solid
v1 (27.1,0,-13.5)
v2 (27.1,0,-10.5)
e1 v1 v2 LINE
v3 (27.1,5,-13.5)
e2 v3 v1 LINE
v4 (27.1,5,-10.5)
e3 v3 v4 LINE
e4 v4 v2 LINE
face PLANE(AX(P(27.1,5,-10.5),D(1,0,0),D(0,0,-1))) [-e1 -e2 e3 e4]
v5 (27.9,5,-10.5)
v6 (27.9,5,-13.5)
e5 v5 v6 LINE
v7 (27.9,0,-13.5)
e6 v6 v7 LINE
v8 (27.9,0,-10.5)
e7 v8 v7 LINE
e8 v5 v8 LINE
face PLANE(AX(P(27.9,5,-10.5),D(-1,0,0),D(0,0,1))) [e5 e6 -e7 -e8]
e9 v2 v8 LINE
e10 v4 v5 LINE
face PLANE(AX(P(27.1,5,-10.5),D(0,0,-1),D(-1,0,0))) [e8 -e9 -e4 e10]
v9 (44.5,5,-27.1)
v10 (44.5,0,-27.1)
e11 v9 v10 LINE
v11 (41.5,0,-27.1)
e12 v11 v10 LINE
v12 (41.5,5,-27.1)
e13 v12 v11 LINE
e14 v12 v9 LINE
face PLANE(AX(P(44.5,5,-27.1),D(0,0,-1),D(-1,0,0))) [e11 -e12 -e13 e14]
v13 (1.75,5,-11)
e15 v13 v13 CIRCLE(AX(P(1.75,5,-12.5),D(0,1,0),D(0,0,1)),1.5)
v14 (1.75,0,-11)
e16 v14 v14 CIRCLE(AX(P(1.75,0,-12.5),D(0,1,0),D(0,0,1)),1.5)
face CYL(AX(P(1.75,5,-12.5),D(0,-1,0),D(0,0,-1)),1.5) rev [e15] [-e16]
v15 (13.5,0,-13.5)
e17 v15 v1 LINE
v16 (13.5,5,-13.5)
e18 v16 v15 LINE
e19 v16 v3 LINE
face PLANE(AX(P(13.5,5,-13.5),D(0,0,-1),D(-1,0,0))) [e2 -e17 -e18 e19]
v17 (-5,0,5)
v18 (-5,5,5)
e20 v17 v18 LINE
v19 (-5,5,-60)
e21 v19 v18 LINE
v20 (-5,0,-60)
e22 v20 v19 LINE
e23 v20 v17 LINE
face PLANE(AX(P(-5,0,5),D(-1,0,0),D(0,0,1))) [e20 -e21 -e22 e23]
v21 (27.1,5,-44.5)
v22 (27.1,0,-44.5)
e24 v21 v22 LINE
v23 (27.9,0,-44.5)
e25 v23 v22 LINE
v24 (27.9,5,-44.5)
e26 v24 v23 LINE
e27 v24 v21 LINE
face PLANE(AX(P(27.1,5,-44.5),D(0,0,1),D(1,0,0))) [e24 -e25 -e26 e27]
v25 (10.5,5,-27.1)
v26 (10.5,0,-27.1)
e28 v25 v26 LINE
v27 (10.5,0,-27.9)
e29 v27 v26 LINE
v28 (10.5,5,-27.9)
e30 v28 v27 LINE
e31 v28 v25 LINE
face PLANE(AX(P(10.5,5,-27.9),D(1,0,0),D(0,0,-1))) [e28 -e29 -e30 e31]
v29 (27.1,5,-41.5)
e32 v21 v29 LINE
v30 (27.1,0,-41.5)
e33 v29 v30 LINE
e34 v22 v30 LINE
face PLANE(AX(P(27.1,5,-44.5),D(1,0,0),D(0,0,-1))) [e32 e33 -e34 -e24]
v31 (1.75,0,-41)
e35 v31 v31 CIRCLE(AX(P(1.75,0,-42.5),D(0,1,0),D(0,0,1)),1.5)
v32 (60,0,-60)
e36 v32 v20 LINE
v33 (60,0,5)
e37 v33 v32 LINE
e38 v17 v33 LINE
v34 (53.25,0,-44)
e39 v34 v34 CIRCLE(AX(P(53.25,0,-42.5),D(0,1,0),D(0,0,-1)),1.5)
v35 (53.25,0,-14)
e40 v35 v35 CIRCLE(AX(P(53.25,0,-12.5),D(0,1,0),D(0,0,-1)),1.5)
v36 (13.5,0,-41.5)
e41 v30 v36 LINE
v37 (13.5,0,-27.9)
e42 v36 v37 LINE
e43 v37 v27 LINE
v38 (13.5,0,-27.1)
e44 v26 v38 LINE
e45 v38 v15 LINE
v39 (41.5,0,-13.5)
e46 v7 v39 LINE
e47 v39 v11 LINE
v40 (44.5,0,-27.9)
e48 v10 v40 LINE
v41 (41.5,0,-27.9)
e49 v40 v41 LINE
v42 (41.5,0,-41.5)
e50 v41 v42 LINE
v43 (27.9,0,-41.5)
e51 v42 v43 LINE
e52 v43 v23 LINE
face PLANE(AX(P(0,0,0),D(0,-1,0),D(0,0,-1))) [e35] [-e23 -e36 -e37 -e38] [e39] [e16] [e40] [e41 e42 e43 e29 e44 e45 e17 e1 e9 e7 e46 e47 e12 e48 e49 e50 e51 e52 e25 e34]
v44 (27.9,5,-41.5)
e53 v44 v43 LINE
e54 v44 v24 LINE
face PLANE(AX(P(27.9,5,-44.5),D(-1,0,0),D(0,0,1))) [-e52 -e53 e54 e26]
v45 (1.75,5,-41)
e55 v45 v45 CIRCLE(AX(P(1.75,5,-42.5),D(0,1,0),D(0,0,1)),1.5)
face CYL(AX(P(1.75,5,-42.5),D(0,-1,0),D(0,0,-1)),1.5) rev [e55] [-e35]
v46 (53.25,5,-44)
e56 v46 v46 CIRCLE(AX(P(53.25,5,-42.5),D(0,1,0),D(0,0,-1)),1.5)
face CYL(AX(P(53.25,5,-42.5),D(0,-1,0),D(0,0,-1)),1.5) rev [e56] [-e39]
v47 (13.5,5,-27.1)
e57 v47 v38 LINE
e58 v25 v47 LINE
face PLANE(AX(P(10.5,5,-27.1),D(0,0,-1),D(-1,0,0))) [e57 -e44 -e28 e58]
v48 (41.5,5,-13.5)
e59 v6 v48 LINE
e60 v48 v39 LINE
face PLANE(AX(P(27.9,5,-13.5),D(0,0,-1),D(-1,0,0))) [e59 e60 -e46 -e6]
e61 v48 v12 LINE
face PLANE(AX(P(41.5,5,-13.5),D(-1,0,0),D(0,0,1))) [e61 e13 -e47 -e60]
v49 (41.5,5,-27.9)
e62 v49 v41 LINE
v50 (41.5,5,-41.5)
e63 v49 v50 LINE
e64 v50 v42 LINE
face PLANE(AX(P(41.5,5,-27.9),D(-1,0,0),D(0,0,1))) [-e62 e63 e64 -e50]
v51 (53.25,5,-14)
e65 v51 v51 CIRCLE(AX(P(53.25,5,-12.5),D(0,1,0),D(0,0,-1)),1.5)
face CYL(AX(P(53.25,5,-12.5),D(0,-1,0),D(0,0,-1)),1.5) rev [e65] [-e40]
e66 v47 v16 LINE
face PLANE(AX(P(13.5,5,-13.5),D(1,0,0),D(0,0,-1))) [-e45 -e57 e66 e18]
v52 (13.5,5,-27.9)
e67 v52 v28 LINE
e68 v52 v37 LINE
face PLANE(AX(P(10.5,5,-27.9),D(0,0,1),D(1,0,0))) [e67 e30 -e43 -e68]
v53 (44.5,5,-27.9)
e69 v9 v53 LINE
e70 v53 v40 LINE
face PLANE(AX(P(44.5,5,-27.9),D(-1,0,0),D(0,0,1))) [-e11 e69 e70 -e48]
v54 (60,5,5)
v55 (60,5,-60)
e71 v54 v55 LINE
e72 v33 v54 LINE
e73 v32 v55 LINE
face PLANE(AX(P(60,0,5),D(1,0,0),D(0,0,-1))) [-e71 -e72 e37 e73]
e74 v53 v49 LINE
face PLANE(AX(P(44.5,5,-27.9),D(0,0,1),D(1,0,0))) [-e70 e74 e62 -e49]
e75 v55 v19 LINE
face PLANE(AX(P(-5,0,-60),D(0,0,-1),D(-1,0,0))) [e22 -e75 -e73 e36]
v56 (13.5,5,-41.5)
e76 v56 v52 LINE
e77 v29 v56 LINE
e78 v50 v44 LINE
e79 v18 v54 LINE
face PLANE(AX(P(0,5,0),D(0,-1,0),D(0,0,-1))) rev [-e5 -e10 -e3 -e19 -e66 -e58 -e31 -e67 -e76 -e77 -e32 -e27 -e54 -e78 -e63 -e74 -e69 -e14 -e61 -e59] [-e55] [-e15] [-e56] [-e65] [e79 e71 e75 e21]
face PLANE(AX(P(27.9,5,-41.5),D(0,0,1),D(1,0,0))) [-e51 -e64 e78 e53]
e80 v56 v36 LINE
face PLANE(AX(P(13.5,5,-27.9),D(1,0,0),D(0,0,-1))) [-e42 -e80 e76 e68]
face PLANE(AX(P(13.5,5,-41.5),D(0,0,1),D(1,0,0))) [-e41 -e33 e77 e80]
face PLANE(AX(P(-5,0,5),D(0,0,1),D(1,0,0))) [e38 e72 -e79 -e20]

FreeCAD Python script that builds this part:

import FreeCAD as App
import Part
import Sketcher

V = App.Vector

doc = App.newDocument("Part")
body = doc.addObject("PartDesign::Body", "Body")

# Sketch on XZ plane
sketch1 = doc.addObject("Sketcher::SketchObject", "Sketch")
body.addObject(sketch1)
sketch1.AttachmentSupport = (doc.XZ_Plane, [""])
sketch1.MapMode = "FlatFace"
sketch1.addGeometry(Part.LineSegment(V(0, -55, 0), V(0, 0, 0)), False)
sketch1.addGeometry(Part.LineSegment(V(0, 0, 0), V(55, 0, 0)), False)
sketch1.addGeometry(Part.LineSegment(V(55, 0, 0), V(55, -55, 0)), False)
sketch1.addGeometry(Part.LineSegment(V(55, -55, 0), V(0, -55, 0)), False)
sketch1.addGeometry(Part.Circle(V(1.8, -12.5, 0), V(0, 0, 1), 1.5), False)
sketch1.addGeometry(Part.Circle(V(53.2, -12.5, 0), V(0, 0, 1), 1.5), False)
sketch1.addGeometry(Part.Circle(V(1.8, -42.5, 0), V(0, 0, 1), 1.5), False)
sketch1.addGeometry(Part.LineSegment(V(27.1, -13.5, 0), V(13.5, -13.5, 0)), False)
sketch1.addGeometry(Part.LineSegment(V(13.5, -13.5, 0), V(13.5, -27.1, 0)), False)
sketch1.addGeometry(Part.LineSegment(V(13.5, -27.1, 0), V(10.5, -27.1, 0)), False)
sketch1.addGeometry(Part.LineSegment(V(10.5, -27.1, 0), V(10.5, -27.9, 0)), False)
sketch1.addGeometry(Part.LineSegment(V(10.5, -27.9, 0), V(13.5, -27.9, 0)), False)
sketch1.addGeometry(Part.LineSegment(V(13.5, -27.9, 0), V(13.5, -41.5, 0)), False)
sketch1.addGeometry(Part.LineSegment(V(13.5, -41.5, 0), V(27.1, -41.5, 0)), False)
sketch1.addGeometry(Part.LineSegment(V(27.1, -41.5, 0), V(27.1, -44.5, 0)), False)
sketch1.addGeometry(Part.LineSegment(V(27.1, -44.5, 0), V(27.9, -44.5, 0)), False)
sketch1.addGeometry(Part.LineSegment(V(27.9, -44.5, 0), V(27.9, -41.5, 0)), False)
sketch1.addGeometry(Part.LineSegment(V(27.9, -41.5, 0), V(41.5, -41.5, 0)), False)
sketch1.addGeometry(Part.LineSegment(V(41.5, -41.5, 0), V(41.5, -27.9, 0)), False)
sketch1.addGeometry(Part.LineSegment(V(41.5, -27.9, 0), V(44.5, -27.9, 0)), False)
sketch1.addGeometry(Part.LineSegment(V(44.5, -27.9, 0), V(44.5, -27.1, 0)), False)
sketch1.addGeometry(Part.LineSegment(V(44.5, -27.1, 0), V(41.5, -27.1, 0)), False)
sketch1.addGeometry(Part.LineSegment(V(41.5, -27.1, 0), V(41.5, -13.5, 0)), False)
sketch1.addGeometry(Part.LineSegment(V(41.5, -13.5, 0), V(27.9, -13.5, 0)), False)
sketch1.addGeometry(Part.LineSegment(V(27.9, -13.5, 0), V(27.9, -10.5, 0)), False)
sketch1.addGeometry(Part.LineSegment(V(27.9, -10.5, 0), V(27.1, -10.5, 0)), False)
sketch1.addGeometry(Part.LineSegment(V(27.1, -10.5, 0), V(27.1, -13.5, 0)), False)
sketch1.addGeometry(Part.Circle(V(53.2, -42.5, 0), V(0, 0, 1), 1.5), False)
sketch1.addConstraint(Sketcher.Constraint("Coincident", 0, 2, 1, 1))
sketch1.addConstraint(Sketcher.Constraint("Coincident", 1, 2, 2, 1))
sketch1.addConstraint(Sketcher.Constraint("Coincident", 2, 2, 3, 1))
sketch1.addConstraint(Sketcher.Constraint("Coincident", 3, 2, 0, 1))
sketch1.addConstraint(Sketcher.Constraint("Coincident", 7, 2, 8, 1))
sketch1.addConstraint(Sketcher.Constraint("Coincident", 8, 2, 9, 1))
sketch1.addConstraint(Sketcher.Constraint("Coincident", 9, 2, 10, 1))
sketch1.addConstraint(Sketcher.Constraint("Coincident", 10, 2, 11, 1))
sketch1.addConstraint(Sketcher.Constraint("Coincident", 11, 2, 12, 1))
sketch1.addConstraint(Sketcher.Constraint("Coincident", 12, 2, 13, 1))
sketch1.addConstraint(Sketcher.Constraint("Coincident", 13, 2, 14, 1))
sketch1.addConstraint(Sketcher.Constraint("Coincident", 14, 2, 15, 1))
sketch1.addConstraint(Sketcher.Constraint("Coincident", 15, 2, 16, 1))
sketch1.addConstraint(Sketcher.Constraint("Coincident", 16, 2, 17, 1))
sketch1.addConstraint(Sketcher.Constraint("Coincident", 17, 2, 18, 1))
sketch1.addConstraint(Sketcher.Constraint("Coincident", 18, 2, 19, 1))
sketch1.addConstraint(Sketcher.Constraint("Coincident", 19, 2, 20, 1))
sketch1.addConstraint(Sketcher.Constraint("Coincident", 20, 2, 21, 1))
sketch1.addConstraint(Sketcher.Constraint("Coincident", 21, 2, 22, 1))
sketch1.addConstraint(Sketcher.Constraint("Coincident", 22, 2, 23, 1))
sketch1.addConstraint(Sketcher.Constraint("Coincident", 23, 2, 24, 1))
sketch1.addConstraint(Sketcher.Constraint("Coincident", 24, 2, 25, 1))
sketch1.addConstraint(Sketcher.Constraint("Coincident", 25, 2, 26, 1))
sketch1.addConstraint(Sketcher.Constraint("Coincident", 26, 2, 7, 1))
sketch1.addConstraint(Sketcher.Constraint("Vertical", 0))
sketch1.addConstraint(Sketcher.Constraint("Horizontal", 1))
sketch1.addConstraint(Sketcher.Constraint("Vertical", 2))
sketch1.addConstraint(Sketcher.Constraint("Horizontal", 3))
sketch1.addConstraint(Sketcher.Constraint("Horizontal", 7))
sketch1.addConstraint(Sketcher.Constraint("Vertical", 8))
sketch1.addConstraint(Sketcher.Constraint("Horizontal", 9))
sketch1.addConstraint(Sketcher.Constraint("Vertical", 10))
sketch1.addConstraint(Sketcher.Constraint("Horizontal", 11))
sketch1.addConstraint(Sketcher.Constraint("Vertical", 12))
sketch1.addConstraint(Sketcher.Constraint("Horizontal", 13))
sketch1.addConstraint(Sketcher.Constraint("Vertical", 14))
sketch1.addConstraint(Sketcher.Constraint("Horizontal", 15))
sketch1.addConstraint(Sketcher.Constraint("Vertical", 16))
sketch1.addConstraint(Sketcher.Constraint("Horizontal", 17))
sketch1.addConstraint(Sketcher.Constraint("Vertical", 18))
sketch1.addConstraint(Sketcher.Constraint("Horizontal", 19))
sketch1.addConstraint(Sketcher.Constraint("Vertical", 20))
sketch1.addConstraint(Sketcher.Constraint("Horizontal", 21))
sketch1.addConstraint(Sketcher.Constraint("Vertical", 22))
sketch1.addConstraint(Sketcher.Constraint("Horizontal", 23))
sketch1.addConstraint(Sketcher.Constraint("Vertical", 24))
sketch1.addConstraint(Sketcher.Constraint("Horizontal", 25))
sketch1.addConstraint(Sketcher.Constraint("Vertical", 26))
sketch1.addConstraint(Sketcher.Constraint("Coincident", 0, 2, -1, 1))
sketch1.addConstraint(Sketcher.Constraint("Equal", 4, 5))
sketch1.addConstraint(Sketcher.Constraint("Equal", 5, 6))
sketch1.addConstraint(Sketcher.Constraint("Equal", 6, 27))
sketch1.addConstraint(Sketcher.Constraint("Horizontal", 4, 3, 5, 3))
sketch1.addConstraint(Sketcher.Constraint("Horizontal", 6, 3, 27, 3))
sketch1.addConstraint(Sketcher.Constraint("Horizontal", 13, 2, 16, 2))
sketch1.addConstraint(Sketcher.Constraint("Horizontal", 11, 2, 18, 2))
sketch1.addConstraint(Sketcher.Constraint("Horizontal", 9, 2, 20, 2))
sketch1.addConstraint(Sketcher.Constraint("Horizontal", 7, 2, 22, 2))
sketch1.addConstraint(Sketcher.Constraint("Vertical", 4, 3, 6, 3))
sketch1.addConstraint(Sketcher.Constraint("Vertical", 5, 3, 27, 3))
sketch1.addConstraint(Sketcher.Constraint("Vertical", 8, 2, 11, 2))
sketch1.addConstraint(Sketcher.Constraint("Vertical", 18, 2, 21, 2))
sketch1.addConstraint(Sketcher.Constraint("Vertical", 16, 2, 23, 2))
sketch1.addConstraint(Sketcher.Constraint("Vertical", 14, 2, 25, 2))
sketch1.addConstraint(Sketcher.Constraint("Equal", 13, 17))
sketch1.addConstraint(Sketcher.Constraint("Equal", 11, 19))
sketch1.addConstraint(Sketcher.Constraint("Equal", 3, 0))
sketch1.addConstraint(Sketcher.Constraint("Equal", 23, 8))
sketch1.addConstraint(Sketcher.Constraint("Equal", 25, 10))
sketch1.addConstraint(Sketcher.Constraint("Equal", 8, 12))
sketch1.addConstraint(Sketcher.Constraint("Equal", 21, 14))
sketch1.addConstraint(Sketcher.Constraint("Equal", 16, 24))
sketch1.addConstraint(Sketcher.Constraint("Diameter", 4, 3.0))
sketch1.addConstraint(Sketcher.Constraint("DistanceX", 1, 1, 1, 2, 55.0))
sketch1.addConstraint(Sketcher.Constraint("DistanceX", 9, 2, 9, 1, 3.0))
sketch1.addConstraint(Sketcher.Constraint("DistanceX", 7, 2, 7, 1, 13.6))
sketch1.addConstraint(Sketcher.Constraint("DistanceX", 15, 1, 15, 2, 0.8))
sketch1.addConstraint(Sketcher.Constraint("DistanceY", 6, 3, 4, 3, 30.0))
sketch1.addConstraint(Sketcher.Constraint("DistanceY", 7, 2, 4, 3, 1.0))
sketch1.addConstraint(Sketcher.Constraint("DistanceY", 4, 3, -1, 1, 12.5))
sketch1.addConstraint(Sketcher.Constraint("DistanceX", -1, 1, 7, 2, 13.5))
sketch1.addConstraint(Sketcher.Constraint("DistanceX", 4, 3, 5, 3, 51.5))
sketch1.addConstraint(Sketcher.Constraint("DistanceX", -1, 1, 4, 3, 1.75))
pad1 = doc.addObject("PartDesign::Pad", "Pad")
body.addObject(pad1)
pad1.Profile = sketch1
pad1.Length = 5
pad1.Reversed = True

# Sketch on XZ plane
sketch2 = doc.addObject("Sketcher::SketchObject", "Sketch001")
body.addObject(sketch2)
sketch2.AttachmentSupport = (doc.XZ_Plane, [""])
sketch2.MapMode = "FlatFace"
sketch2.AttachmentOffset = App.Placement(V(0, 0, -5), App.Rotation())
sketch2.addGeometry(Part.LineSegment(V(-5, -60, 0), V(-5, 5, 0)), False)
sketch2.addGeometry(Part.LineSegment(V(-5, 5, 0), V(60, 5, 0)), False)
sketch2.addGeometry(Part.LineSegment(V(60, 5, 0), V(60, -60, 0)), False)
sketch2.addGeometry(Part.LineSegment(V(60, -60, 0), V(-5, -60, 0)), False)
sketch2.addGeometry(Part.LineSegment(V(55, 0, 0), V(0, 0, 0)), False)
sketch2.addGeometry(Part.LineSegment(V(0, 0, 0), V(0, -55, 0)), False)
sketch2.addGeometry(Part.LineSegment(V(0, -55, 0), V(55, -55, 0)), False)
sketch2.addGeometry(Part.LineSegment(V(55, -55, 0), V(55, 0, 0)), False)
sketch2.addConstraint(Sketcher.Constraint("Coincident", 0, 2, 1, 1))
sketch2.addConstraint(Sketcher.Constraint("Coincident", 1, 2, 2, 1))
sketch2.addConstraint(Sketcher.Constraint("Coincident", 2, 2, 3, 1))
sketch2.addConstraint(Sketcher.Constraint("Coincident", 3, 2, 0, 1))
sketch2.addConstraint(Sketcher.Constraint("Coincident", 4, 2, 5, 1))
sketch2.addConstraint(Sketcher.Constraint("Coincident", 5, 2, 6, 1))
sketch2.addConstraint(Sketcher.Constraint("Coincident", 6, 2, 7, 1))
sketch2.addConstraint(Sketcher.Constraint("Coincident", 7, 2, 4, 1))
sketch2.addConstraint(Sketcher.Constraint("Vertical", 0))
sketch2.addConstraint(Sketcher.Constraint("Horizontal", 1))
sketch2.addConstraint(Sketcher.Constraint("Vertical", 2))
sketch2.addConstraint(Sketcher.Constraint("Horizontal", 3))
sketch2.addConstraint(Sketcher.Constraint("Horizontal", 4))
sketch2.addConstraint(Sketcher.Constraint("Vertical", 5))
sketch2.addConstraint(Sketcher.Constraint("Horizontal", 6))
sketch2.addConstraint(Sketcher.Constraint("Vertical", 7))
sketch2.addConstraint(Sketcher.Constraint("Coincident", 4, 2, -1, 1))
sketch2.addConstraint(Sketcher.Constraint("Equal", 3, 0))
sketch2.addConstraint(Sketcher.Constraint("Equal", 6, 5))
sketch2.addConstraint(Sketcher.Constraint("DistanceX", 1, 1, 1, 2, 65.0))
sketch2.addConstraint(Sketcher.Constraint("DistanceX", 4, 2, 4, 1, 55.0))
sketch2.addConstraint(Sketcher.Constraint("DistanceX", 0, 2, -1, 1, 5.0))
sketch2.addConstraint(Sketcher.Constraint("DistanceY", -1, 1, 0, 2, 5.0))
pad2 = doc.addObject("PartDesign::Pad", "Pad001")
body.addObject(pad2)
pad2.Profile = sketch2
pad2.Length = 5

doc.recompute()
